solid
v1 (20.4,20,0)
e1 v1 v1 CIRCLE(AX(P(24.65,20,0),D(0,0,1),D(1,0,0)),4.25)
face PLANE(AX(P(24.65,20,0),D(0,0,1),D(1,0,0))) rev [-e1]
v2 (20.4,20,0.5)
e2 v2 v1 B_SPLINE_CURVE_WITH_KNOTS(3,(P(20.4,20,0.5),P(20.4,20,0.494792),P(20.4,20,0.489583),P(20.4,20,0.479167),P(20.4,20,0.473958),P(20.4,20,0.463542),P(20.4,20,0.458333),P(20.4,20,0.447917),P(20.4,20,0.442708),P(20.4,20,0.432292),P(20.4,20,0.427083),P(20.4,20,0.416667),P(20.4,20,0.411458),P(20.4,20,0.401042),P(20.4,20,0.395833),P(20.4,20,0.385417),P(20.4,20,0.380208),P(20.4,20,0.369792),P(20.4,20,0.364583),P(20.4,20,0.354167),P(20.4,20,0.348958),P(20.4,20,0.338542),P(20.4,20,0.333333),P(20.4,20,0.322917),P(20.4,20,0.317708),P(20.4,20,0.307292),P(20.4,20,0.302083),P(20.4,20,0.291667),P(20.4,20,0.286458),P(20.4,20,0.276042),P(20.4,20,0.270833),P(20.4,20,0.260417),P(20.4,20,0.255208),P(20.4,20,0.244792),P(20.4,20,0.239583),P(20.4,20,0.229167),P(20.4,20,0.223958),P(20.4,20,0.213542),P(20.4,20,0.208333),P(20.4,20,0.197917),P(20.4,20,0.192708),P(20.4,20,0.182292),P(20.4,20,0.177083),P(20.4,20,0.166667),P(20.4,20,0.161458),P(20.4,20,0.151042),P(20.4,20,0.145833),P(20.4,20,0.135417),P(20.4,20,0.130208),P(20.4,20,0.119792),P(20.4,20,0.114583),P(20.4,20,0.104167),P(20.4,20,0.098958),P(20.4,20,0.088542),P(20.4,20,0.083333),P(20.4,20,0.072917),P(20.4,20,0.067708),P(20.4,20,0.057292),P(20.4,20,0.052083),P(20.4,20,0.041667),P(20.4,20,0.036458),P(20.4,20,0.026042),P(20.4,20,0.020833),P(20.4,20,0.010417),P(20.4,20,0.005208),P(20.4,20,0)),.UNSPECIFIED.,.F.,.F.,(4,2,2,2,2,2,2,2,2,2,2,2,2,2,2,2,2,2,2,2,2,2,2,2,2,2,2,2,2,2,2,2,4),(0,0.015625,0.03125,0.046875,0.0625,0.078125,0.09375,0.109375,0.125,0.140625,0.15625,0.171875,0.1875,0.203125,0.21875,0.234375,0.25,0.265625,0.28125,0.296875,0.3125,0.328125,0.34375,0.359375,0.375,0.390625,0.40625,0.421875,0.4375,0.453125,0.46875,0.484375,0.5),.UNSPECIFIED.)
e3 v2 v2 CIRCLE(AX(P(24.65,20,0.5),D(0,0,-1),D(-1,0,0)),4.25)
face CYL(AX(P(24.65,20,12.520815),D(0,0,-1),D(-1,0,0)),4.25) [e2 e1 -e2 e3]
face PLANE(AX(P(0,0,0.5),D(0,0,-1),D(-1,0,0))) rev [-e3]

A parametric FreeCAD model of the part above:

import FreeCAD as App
import Part
import Sketcher
from FreeCAD import Vector

doc = App.newDocument("Part")
body = doc.addObject("PartDesign::Body", "Body")

# Sketch on XY plane
sketch1 = doc.addObject("Sketcher::SketchObject", "Sketch")
body.addObject(sketch1)
sketch1.AttachmentSupport = (doc.XY_Plane, [""])
sketch1.MapMode = "FlatFace"
sketch1.addGeometry(Part.Circle(Vector(24.6, 20, 0), Vector(0, 0, 1), 4.2), False)
sketch1.addConstraint([
    Sketcher.Constraint("Diameter", 0, 8.5),
    Sketcher.Constraint("DistanceY", -1, 1, 0, 3, 20.0),
    Sketcher.Constraint("DistanceX", -1, 1, 0, 3, 24.65),
])
pad1 = doc.addObject("PartDesign::Pad", "Pad")
body.addObject(pad1)
pad1.Profile = sketch1
pad1.Length = 0.5

doc.recompute()
